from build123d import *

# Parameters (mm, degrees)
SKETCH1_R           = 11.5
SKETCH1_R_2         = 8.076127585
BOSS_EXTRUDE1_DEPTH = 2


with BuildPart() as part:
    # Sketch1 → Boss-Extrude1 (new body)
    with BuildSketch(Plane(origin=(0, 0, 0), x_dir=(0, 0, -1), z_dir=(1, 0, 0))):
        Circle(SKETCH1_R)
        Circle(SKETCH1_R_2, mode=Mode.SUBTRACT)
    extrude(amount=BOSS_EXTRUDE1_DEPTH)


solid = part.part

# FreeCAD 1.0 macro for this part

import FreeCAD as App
import Part
import Sketcher
from FreeCAD import Vector
Q = App.Units.Quantity

doc = App.newDocument("Part")
body = doc.addObject("PartDesign::Body", "Body")

sketch1 = doc.addObject("Sketcher::SketchObject", "Sketch")
body.addObject(sketch1)
sketch1.AttachmentSupport = (doc.YZ_Plane, [""])
sketch1.MapMode = "FlatFace"
sketch1.addGeometry([
    Part.Circle(Vector(0, 0, 0), Vector(0, 0, 1), 12),
    Part.Circle(Vector(0, 0, 0), Vector(0, 0, 1), 8),
], False)
sketch1.addConstraint([
    Sketcher.Constraint("Coincident", 0, 3, -1, 1),
    Sketcher.Constraint("Coincident", 1, 3, -1, 1),
    Sketcher.Constraint("Diameter", 0, Q("23 mm")),
    Sketcher.Constraint("Diameter", 1, Q("16.152255 mm")),
])
pad1 = doc.addObject("PartDesign::Pad", "Pad")
body.addObject(pad1)
pad1.Profile = sketch1
pad1.Length = 2

doc.recompute()
